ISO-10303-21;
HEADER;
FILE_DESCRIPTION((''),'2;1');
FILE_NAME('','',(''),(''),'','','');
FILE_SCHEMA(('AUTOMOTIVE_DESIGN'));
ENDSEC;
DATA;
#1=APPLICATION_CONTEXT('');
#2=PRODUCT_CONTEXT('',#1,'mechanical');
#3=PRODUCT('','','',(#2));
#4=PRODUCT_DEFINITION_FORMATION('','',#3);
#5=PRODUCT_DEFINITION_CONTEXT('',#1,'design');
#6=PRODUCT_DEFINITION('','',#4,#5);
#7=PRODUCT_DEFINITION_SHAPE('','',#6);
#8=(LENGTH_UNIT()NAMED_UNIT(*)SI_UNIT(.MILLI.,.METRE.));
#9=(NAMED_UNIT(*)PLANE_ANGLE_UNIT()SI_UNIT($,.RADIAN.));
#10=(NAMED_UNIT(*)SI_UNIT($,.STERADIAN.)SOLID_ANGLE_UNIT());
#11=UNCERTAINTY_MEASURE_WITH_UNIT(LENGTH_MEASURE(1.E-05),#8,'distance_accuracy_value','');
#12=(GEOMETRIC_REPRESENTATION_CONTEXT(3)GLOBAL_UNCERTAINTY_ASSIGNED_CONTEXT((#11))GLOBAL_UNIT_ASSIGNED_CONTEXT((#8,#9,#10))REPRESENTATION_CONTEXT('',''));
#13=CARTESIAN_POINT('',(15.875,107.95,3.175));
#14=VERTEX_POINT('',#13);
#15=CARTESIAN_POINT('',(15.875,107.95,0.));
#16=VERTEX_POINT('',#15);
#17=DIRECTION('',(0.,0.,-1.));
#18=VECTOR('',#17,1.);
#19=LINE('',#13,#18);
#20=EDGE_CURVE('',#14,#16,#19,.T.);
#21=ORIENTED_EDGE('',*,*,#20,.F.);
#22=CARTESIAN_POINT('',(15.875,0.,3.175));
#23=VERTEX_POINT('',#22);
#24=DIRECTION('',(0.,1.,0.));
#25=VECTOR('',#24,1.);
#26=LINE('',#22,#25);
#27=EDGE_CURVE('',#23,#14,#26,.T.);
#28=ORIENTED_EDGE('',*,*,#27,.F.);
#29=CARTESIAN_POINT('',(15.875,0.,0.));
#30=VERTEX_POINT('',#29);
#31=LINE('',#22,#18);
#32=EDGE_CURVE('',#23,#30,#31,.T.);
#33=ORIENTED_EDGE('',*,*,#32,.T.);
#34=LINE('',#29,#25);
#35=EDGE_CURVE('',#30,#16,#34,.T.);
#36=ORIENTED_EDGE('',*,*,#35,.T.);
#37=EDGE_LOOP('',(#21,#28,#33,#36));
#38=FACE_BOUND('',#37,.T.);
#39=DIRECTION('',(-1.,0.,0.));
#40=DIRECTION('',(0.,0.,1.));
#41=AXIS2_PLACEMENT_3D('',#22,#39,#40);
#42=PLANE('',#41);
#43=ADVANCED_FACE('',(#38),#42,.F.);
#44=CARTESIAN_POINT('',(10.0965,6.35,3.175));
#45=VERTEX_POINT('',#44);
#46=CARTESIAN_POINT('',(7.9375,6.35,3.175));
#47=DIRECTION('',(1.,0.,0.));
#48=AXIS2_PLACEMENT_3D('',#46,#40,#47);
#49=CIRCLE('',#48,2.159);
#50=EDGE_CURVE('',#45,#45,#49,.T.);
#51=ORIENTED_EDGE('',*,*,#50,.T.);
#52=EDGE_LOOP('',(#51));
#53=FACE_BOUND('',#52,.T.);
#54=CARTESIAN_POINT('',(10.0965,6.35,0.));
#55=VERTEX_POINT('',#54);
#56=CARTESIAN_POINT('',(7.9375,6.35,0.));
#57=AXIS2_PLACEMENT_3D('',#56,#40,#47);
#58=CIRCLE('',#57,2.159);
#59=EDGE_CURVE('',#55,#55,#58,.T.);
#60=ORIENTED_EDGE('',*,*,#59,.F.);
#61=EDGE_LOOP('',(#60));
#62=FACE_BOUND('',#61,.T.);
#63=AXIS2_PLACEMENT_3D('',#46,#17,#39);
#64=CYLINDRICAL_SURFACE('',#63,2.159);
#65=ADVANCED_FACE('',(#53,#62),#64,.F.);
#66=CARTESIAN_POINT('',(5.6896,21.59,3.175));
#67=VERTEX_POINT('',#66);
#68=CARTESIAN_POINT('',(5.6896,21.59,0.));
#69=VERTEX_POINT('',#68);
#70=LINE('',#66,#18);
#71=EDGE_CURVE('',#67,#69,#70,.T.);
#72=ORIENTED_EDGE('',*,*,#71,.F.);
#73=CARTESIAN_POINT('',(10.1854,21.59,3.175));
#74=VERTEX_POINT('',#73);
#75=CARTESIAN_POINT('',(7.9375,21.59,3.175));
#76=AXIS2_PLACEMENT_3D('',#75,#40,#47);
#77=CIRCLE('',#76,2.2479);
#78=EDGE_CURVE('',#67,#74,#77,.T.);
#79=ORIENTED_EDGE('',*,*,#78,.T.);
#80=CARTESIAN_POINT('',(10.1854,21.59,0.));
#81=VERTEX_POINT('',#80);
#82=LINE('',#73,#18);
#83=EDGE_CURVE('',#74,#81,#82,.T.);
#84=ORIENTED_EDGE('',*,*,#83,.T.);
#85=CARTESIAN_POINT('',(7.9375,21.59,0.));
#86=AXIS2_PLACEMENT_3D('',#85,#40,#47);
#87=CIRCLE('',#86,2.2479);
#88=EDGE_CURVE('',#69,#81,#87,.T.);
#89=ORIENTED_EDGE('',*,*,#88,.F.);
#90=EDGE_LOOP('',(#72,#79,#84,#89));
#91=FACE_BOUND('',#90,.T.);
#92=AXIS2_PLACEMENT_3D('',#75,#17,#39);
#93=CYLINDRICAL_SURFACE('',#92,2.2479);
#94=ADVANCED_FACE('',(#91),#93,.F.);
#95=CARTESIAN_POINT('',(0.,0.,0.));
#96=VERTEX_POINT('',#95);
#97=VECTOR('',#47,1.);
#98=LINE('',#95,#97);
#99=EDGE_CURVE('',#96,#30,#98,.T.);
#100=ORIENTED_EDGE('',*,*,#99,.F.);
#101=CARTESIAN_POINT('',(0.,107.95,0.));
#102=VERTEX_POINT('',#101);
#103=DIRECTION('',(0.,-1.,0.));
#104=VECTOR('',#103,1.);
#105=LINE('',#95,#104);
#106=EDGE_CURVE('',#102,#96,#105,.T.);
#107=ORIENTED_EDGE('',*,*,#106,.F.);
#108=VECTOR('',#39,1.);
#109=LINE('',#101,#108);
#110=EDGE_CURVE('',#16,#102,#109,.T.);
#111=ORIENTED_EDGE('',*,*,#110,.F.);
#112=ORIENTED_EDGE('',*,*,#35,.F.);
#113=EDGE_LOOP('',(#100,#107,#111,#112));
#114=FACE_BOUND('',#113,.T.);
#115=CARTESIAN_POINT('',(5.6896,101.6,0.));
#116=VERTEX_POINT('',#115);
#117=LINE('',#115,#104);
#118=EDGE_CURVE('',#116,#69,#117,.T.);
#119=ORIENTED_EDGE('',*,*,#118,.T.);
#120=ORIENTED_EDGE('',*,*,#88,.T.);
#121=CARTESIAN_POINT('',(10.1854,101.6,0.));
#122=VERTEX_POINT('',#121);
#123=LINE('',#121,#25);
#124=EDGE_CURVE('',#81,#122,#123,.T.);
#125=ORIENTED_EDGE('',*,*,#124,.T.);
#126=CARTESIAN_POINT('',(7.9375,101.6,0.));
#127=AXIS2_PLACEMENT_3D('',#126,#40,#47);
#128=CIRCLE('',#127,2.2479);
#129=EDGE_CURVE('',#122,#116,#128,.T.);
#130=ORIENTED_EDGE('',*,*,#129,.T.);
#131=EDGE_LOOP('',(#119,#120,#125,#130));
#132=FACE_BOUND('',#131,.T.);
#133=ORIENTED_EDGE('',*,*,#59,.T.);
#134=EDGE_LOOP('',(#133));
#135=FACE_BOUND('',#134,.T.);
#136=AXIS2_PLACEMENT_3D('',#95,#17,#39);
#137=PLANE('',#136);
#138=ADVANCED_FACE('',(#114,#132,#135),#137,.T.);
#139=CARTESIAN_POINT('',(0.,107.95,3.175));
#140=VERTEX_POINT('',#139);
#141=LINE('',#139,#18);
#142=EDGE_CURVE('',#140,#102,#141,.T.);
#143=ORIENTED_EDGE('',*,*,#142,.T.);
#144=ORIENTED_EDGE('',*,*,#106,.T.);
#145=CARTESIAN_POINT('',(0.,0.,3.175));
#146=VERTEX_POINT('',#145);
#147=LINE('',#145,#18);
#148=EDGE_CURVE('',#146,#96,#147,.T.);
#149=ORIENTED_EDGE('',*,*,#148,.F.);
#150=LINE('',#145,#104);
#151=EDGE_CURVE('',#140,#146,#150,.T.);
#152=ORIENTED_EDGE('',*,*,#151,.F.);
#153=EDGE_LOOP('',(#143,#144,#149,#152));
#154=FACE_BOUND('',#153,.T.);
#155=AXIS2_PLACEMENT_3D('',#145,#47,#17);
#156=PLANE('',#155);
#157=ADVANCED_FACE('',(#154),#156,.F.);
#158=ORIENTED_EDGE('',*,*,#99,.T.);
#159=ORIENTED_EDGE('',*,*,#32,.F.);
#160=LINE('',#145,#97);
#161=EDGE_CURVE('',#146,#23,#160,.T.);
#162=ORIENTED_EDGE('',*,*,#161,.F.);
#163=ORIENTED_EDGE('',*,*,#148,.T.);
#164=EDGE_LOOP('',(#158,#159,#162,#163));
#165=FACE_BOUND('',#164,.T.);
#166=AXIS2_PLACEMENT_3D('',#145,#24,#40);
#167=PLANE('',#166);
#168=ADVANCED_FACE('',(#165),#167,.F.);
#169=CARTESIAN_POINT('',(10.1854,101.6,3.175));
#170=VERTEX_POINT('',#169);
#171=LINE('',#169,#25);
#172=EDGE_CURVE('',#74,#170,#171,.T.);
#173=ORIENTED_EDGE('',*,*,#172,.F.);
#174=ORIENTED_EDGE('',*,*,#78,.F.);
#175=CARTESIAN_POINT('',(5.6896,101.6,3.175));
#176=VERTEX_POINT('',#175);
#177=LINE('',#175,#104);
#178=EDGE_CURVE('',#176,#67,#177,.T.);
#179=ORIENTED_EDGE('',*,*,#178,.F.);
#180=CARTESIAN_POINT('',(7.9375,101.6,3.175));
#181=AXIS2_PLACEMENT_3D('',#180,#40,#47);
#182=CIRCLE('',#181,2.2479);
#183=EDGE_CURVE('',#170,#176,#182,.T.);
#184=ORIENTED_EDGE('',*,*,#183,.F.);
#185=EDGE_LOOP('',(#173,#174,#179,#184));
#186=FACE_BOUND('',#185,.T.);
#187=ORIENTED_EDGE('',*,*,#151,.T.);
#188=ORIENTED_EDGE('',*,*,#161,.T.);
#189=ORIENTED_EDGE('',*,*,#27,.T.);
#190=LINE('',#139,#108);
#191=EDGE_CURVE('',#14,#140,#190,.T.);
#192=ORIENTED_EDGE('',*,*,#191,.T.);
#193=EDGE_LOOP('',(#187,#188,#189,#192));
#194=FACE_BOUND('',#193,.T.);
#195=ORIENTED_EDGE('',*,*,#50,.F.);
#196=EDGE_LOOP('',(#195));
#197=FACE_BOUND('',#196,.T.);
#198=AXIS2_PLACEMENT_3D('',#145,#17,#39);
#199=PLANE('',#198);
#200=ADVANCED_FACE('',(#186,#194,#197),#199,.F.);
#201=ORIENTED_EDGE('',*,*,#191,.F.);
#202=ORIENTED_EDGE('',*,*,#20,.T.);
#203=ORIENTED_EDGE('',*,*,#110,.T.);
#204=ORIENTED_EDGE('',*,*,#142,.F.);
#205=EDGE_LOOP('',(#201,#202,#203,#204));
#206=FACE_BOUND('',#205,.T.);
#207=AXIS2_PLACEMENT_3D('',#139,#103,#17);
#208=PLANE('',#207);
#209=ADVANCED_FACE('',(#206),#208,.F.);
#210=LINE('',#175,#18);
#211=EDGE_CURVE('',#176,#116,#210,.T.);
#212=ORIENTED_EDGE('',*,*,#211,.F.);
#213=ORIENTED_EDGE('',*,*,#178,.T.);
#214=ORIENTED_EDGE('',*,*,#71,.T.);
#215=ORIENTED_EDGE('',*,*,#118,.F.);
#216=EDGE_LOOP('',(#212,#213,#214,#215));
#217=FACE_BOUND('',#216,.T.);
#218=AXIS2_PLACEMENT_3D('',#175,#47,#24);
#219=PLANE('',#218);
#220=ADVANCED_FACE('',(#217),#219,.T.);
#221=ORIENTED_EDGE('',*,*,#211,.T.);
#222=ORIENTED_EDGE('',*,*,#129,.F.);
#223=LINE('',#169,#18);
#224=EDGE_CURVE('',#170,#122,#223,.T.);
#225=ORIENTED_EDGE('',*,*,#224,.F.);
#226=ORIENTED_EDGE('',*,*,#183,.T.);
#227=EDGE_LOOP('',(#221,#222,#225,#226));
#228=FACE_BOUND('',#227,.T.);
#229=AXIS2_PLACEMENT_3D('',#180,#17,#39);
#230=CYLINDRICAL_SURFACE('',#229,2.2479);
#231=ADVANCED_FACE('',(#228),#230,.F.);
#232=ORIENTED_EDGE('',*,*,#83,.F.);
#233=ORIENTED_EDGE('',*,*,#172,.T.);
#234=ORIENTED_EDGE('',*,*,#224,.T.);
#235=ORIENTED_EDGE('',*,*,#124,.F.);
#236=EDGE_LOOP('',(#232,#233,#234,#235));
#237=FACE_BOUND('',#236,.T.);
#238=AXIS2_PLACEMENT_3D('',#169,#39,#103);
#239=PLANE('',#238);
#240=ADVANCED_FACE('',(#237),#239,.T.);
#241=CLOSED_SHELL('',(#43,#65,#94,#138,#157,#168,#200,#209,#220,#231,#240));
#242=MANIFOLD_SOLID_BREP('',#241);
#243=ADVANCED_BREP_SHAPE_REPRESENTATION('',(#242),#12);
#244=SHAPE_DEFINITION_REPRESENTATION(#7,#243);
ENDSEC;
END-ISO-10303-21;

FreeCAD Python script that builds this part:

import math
import FreeCAD as App
import Part
import Sketcher
Q = App.Units.Quantity

doc = App.newDocument("Part")
body = doc.addObject("PartDesign::Body", "Body")

# Sketch on XY plane
sketch1 = body.newObject("Sketcher::SketchObject", "Sketch")
sketch1.AttachmentSupport = (doc.getObject("XY_Plane"), [""])
sketch1.MapMode = "FlatFace"
sketch1.addGeometry(Part.LineSegment(App.Vector(0, 107.95, 0), App.Vector(0, 0, 0)), False)
sketch1.addGeometry(Part.LineSegment(App.Vector(0, 0, 0), App.Vector(15.875, 0, 0)), False)
sketch1.addGeometry(Part.LineSegment(App.Vector(15.875, 0, 0), App.Vector(15.875, 107.95, 0)), False)
sketch1.addGeometry(Part.LineSegment(App.Vector(15.875, 107.95, 0), App.Vector(0, 107.95, 0)), False)
sketch1.addGeometry(Part.Circle(App.Vector(7.9375, 6.35, 0), App.Vector(0, 0, 1), 2.159), False)
sketch1.addGeometry(Part.ArcOfCircle(Part.Circle(App.Vector(7.9375, 101.6, 0), App.Vector(0, 0, 1), 2.2479), math.radians(0), math.radians(180)), False)
sketch1.addGeometry(Part.LineSegment(App.Vector(10.1854, 101.6, 0), App.Vector(10.1854, 21.59, 0)), False)
sketch1.addGeometry(Part.ArcOfCircle(Part.Circle(App.Vector(7.9375, 21.59, 0), App.Vector(0, 0, 1), 2.2479), math.radians(180), math.radians(360)), False)
sketch1.addGeometry(Part.LineSegment(App.Vector(5.6896, 21.59, 0), App.Vector(5.6896, 101.6, 0)), False)
sketch1.addConstraint(Sketcher.Constraint("Coincident", 0, 2, 1, 1))
sketch1.addConstraint(Sketcher.Constraint("Coincident", 1, 2, 2, 1))
sketch1.addConstraint(Sketcher.Constraint("Coincident", 2, 2, 3, 1))
sketch1.addConstraint(Sketcher.Constraint("Coincident", 3, 2, 0, 1))
sketch1.addConstraint(Sketcher.Constraint("Tangent", 5, 1, 6, 1))
sketch1.addConstraint(Sketcher.Constraint("Tangent", 6, 2, 7, 2))
sketch1.addConstraint(Sketcher.Constraint("Tangent", 7, 1, 8, 1))
sketch1.addConstraint(Sketcher.Constraint("Tangent", 8, 2, 5, 2))
sketch1.addConstraint(Sketcher.Constraint("Vertical", 0))
sketch1.addConstraint(Sketcher.Constraint("Horizontal", 1))
sketch1.addConstraint(Sketcher.Constraint("Vertical", 2))
sketch1.addConstraint(Sketcher.Constraint("Horizontal", 3))
sketch1.addConstraint(Sketcher.Constraint("Vertical", 6))
sketch1.addConstraint(Sketcher.Constraint("Vertical", 8))
sketch1.addConstraint(Sketcher.Constraint("Coincident", 0, 2, -1, 1))
sketch1.addConstraint(Sketcher.Constraint("Vertical", 4, 3, 5, 3))
sketch1.addConstraint(Sketcher.Constraint("Diameter", 4, Q("0.17 in")))
sketch1.addConstraint(Sketcher.Constraint("DistanceY", -1, 1, 5, 3, Q("4 in")))
sketch1.addConstraint(Sketcher.Constraint("DistanceY", 4, 3, 2, 2, Q("4 in")))
sketch1.addConstraint(Sketcher.Constraint("DistanceY", 0, 2, 0, 1, Q("4.25 in")))
sketch1.addConstraint(Sketcher.Constraint("DistanceY", 6, 2, 6, 1, Q("3.15 in")))
sketch1.addConstraint(Sketcher.Constraint("Radius", 5, Q("0.0885 in")))
sketch1.addConstraint(Sketcher.Constraint("DistanceX", 1, 1, 1, 2, Q("0.625 in")))
sketch1.addConstraint(Sketcher.Constraint("DistanceX", -1, 1, 4, 3, Q("0.3125 in")))
pad1 = body.newObject("PartDesign::Pad", "Pad")
pad1.Profile = sketch1
pad1.Length = Q("0.125 in")

doc.recompute()
